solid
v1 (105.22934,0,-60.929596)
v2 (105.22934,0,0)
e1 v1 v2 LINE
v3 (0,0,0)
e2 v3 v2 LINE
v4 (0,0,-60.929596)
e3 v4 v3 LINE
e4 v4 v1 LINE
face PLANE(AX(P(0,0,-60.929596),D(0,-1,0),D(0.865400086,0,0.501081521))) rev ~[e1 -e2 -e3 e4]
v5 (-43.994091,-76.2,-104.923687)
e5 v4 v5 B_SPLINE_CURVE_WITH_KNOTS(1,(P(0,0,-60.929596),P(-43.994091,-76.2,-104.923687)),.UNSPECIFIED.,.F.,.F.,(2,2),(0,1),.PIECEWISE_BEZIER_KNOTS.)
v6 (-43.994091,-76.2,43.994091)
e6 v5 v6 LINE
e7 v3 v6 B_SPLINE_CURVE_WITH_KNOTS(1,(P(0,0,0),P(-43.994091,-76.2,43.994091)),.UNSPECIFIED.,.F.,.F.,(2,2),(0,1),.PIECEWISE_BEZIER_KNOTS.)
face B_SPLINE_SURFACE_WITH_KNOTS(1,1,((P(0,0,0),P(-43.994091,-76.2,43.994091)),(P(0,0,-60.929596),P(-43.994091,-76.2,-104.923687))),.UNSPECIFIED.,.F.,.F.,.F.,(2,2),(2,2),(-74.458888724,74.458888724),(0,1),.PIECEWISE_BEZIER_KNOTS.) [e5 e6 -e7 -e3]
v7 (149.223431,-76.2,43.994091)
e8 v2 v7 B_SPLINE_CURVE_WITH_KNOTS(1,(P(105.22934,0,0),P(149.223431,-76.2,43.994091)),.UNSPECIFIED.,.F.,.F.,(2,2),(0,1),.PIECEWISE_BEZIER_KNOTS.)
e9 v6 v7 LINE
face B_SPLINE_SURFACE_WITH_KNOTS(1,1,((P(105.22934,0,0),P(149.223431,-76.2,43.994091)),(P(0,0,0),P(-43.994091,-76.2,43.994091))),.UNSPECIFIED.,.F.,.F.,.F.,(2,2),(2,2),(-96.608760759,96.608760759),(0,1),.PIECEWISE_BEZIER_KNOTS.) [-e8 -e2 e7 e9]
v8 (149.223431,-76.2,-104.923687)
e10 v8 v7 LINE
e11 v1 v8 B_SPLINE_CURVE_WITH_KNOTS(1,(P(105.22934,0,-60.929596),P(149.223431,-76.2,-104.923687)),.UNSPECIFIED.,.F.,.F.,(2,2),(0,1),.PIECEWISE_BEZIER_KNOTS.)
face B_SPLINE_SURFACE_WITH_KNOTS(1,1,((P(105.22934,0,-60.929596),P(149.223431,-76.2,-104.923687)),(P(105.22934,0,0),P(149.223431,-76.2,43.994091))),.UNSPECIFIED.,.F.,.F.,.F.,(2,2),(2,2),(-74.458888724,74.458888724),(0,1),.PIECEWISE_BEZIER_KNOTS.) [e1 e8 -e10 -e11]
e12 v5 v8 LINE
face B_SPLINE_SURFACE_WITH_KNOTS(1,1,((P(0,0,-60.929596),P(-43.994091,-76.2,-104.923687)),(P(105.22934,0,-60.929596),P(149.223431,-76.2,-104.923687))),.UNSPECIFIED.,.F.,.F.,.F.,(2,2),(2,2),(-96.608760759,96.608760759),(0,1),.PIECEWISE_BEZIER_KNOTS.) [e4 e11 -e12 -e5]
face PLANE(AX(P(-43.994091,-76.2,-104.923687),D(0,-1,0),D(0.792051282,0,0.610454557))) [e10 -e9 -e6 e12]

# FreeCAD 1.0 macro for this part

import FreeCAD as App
import Part
import Sketcher
Q = App.Units.Quantity

doc = App.newDocument("Part")
params = doc.addObject("Spreadsheet::Sheet", "Params")
for row, (alias, value) in enumerate([
    ("pad1_length", "3 in"),
    ("pad1_taper", "30 deg"),
], start=1):
    params.set(f"A{row}", alias)
    params.set(f"B{row}", "=" + value)
    params.setAlias(f"B{row}", alias)

body = doc.addObject("PartDesign::Body", "Body")

# Sketch on XZ plane
sketch1 = doc.addObject("Sketcher::SketchObject", "Sketch")
body.addObject(sketch1)
sketch1.AttachmentSupport = (doc.XZ_Plane, [""])
sketch1.MapMode = "FlatFace"
sketch1.addGeometry(Part.LineSegment(App.Vector(0, 0, 0), App.Vector(0, -61, 0)), False)
sketch1.addGeometry(Part.LineSegment(App.Vector(0, -61, 0), App.Vector(105, -61, 0)), False)
sketch1.addGeometry(Part.LineSegment(App.Vector(105, -61, 0), App.Vector(105, 0, 0)), False)
sketch1.addGeometry(Part.LineSegment(App.Vector(105, 0, 0), App.Vector(0, 0, 0)), False)
sketch1.addConstraint(Sketcher.Constraint("Coincident", 0, 2, 1, 1))
sketch1.addConstraint(Sketcher.Constraint("Coincident", 1, 2, 2, 1))
sketch1.addConstraint(Sketcher.Constraint("Coincident", 2, 2, 3, 1))
sketch1.addConstraint(Sketcher.Constraint("Coincident", 3, 2, 0, 1))
sketch1.addConstraint(Sketcher.Constraint("Vertical", 0))
sketch1.addConstraint(Sketcher.Constraint("Horizontal", 1))
sketch1.addConstraint(Sketcher.Constraint("Vertical", 2))
sketch1.addConstraint(Sketcher.Constraint("Horizontal", 3))
sketch1.addConstraint(Sketcher.Constraint("Coincident", 3, 2, -1, 1))
sketch1.addConstraint(Sketcher.Constraint("DistanceX", 1, 1, 1, 2, Q("105.22934 mm")))
sketch1.addConstraint(Sketcher.Constraint("DistanceY", 0, 2, 0, 1, Q("60.929596 mm")))
pad1 = doc.addObject("PartDesign::Pad", "Pad")
body.addObject(pad1)
pad1.Profile = sketch1
pad1.setExpression("Length", "Params.pad1_length")
pad1.setExpression("TaperAngle", "Params.pad1_taper")

doc.recompute()
